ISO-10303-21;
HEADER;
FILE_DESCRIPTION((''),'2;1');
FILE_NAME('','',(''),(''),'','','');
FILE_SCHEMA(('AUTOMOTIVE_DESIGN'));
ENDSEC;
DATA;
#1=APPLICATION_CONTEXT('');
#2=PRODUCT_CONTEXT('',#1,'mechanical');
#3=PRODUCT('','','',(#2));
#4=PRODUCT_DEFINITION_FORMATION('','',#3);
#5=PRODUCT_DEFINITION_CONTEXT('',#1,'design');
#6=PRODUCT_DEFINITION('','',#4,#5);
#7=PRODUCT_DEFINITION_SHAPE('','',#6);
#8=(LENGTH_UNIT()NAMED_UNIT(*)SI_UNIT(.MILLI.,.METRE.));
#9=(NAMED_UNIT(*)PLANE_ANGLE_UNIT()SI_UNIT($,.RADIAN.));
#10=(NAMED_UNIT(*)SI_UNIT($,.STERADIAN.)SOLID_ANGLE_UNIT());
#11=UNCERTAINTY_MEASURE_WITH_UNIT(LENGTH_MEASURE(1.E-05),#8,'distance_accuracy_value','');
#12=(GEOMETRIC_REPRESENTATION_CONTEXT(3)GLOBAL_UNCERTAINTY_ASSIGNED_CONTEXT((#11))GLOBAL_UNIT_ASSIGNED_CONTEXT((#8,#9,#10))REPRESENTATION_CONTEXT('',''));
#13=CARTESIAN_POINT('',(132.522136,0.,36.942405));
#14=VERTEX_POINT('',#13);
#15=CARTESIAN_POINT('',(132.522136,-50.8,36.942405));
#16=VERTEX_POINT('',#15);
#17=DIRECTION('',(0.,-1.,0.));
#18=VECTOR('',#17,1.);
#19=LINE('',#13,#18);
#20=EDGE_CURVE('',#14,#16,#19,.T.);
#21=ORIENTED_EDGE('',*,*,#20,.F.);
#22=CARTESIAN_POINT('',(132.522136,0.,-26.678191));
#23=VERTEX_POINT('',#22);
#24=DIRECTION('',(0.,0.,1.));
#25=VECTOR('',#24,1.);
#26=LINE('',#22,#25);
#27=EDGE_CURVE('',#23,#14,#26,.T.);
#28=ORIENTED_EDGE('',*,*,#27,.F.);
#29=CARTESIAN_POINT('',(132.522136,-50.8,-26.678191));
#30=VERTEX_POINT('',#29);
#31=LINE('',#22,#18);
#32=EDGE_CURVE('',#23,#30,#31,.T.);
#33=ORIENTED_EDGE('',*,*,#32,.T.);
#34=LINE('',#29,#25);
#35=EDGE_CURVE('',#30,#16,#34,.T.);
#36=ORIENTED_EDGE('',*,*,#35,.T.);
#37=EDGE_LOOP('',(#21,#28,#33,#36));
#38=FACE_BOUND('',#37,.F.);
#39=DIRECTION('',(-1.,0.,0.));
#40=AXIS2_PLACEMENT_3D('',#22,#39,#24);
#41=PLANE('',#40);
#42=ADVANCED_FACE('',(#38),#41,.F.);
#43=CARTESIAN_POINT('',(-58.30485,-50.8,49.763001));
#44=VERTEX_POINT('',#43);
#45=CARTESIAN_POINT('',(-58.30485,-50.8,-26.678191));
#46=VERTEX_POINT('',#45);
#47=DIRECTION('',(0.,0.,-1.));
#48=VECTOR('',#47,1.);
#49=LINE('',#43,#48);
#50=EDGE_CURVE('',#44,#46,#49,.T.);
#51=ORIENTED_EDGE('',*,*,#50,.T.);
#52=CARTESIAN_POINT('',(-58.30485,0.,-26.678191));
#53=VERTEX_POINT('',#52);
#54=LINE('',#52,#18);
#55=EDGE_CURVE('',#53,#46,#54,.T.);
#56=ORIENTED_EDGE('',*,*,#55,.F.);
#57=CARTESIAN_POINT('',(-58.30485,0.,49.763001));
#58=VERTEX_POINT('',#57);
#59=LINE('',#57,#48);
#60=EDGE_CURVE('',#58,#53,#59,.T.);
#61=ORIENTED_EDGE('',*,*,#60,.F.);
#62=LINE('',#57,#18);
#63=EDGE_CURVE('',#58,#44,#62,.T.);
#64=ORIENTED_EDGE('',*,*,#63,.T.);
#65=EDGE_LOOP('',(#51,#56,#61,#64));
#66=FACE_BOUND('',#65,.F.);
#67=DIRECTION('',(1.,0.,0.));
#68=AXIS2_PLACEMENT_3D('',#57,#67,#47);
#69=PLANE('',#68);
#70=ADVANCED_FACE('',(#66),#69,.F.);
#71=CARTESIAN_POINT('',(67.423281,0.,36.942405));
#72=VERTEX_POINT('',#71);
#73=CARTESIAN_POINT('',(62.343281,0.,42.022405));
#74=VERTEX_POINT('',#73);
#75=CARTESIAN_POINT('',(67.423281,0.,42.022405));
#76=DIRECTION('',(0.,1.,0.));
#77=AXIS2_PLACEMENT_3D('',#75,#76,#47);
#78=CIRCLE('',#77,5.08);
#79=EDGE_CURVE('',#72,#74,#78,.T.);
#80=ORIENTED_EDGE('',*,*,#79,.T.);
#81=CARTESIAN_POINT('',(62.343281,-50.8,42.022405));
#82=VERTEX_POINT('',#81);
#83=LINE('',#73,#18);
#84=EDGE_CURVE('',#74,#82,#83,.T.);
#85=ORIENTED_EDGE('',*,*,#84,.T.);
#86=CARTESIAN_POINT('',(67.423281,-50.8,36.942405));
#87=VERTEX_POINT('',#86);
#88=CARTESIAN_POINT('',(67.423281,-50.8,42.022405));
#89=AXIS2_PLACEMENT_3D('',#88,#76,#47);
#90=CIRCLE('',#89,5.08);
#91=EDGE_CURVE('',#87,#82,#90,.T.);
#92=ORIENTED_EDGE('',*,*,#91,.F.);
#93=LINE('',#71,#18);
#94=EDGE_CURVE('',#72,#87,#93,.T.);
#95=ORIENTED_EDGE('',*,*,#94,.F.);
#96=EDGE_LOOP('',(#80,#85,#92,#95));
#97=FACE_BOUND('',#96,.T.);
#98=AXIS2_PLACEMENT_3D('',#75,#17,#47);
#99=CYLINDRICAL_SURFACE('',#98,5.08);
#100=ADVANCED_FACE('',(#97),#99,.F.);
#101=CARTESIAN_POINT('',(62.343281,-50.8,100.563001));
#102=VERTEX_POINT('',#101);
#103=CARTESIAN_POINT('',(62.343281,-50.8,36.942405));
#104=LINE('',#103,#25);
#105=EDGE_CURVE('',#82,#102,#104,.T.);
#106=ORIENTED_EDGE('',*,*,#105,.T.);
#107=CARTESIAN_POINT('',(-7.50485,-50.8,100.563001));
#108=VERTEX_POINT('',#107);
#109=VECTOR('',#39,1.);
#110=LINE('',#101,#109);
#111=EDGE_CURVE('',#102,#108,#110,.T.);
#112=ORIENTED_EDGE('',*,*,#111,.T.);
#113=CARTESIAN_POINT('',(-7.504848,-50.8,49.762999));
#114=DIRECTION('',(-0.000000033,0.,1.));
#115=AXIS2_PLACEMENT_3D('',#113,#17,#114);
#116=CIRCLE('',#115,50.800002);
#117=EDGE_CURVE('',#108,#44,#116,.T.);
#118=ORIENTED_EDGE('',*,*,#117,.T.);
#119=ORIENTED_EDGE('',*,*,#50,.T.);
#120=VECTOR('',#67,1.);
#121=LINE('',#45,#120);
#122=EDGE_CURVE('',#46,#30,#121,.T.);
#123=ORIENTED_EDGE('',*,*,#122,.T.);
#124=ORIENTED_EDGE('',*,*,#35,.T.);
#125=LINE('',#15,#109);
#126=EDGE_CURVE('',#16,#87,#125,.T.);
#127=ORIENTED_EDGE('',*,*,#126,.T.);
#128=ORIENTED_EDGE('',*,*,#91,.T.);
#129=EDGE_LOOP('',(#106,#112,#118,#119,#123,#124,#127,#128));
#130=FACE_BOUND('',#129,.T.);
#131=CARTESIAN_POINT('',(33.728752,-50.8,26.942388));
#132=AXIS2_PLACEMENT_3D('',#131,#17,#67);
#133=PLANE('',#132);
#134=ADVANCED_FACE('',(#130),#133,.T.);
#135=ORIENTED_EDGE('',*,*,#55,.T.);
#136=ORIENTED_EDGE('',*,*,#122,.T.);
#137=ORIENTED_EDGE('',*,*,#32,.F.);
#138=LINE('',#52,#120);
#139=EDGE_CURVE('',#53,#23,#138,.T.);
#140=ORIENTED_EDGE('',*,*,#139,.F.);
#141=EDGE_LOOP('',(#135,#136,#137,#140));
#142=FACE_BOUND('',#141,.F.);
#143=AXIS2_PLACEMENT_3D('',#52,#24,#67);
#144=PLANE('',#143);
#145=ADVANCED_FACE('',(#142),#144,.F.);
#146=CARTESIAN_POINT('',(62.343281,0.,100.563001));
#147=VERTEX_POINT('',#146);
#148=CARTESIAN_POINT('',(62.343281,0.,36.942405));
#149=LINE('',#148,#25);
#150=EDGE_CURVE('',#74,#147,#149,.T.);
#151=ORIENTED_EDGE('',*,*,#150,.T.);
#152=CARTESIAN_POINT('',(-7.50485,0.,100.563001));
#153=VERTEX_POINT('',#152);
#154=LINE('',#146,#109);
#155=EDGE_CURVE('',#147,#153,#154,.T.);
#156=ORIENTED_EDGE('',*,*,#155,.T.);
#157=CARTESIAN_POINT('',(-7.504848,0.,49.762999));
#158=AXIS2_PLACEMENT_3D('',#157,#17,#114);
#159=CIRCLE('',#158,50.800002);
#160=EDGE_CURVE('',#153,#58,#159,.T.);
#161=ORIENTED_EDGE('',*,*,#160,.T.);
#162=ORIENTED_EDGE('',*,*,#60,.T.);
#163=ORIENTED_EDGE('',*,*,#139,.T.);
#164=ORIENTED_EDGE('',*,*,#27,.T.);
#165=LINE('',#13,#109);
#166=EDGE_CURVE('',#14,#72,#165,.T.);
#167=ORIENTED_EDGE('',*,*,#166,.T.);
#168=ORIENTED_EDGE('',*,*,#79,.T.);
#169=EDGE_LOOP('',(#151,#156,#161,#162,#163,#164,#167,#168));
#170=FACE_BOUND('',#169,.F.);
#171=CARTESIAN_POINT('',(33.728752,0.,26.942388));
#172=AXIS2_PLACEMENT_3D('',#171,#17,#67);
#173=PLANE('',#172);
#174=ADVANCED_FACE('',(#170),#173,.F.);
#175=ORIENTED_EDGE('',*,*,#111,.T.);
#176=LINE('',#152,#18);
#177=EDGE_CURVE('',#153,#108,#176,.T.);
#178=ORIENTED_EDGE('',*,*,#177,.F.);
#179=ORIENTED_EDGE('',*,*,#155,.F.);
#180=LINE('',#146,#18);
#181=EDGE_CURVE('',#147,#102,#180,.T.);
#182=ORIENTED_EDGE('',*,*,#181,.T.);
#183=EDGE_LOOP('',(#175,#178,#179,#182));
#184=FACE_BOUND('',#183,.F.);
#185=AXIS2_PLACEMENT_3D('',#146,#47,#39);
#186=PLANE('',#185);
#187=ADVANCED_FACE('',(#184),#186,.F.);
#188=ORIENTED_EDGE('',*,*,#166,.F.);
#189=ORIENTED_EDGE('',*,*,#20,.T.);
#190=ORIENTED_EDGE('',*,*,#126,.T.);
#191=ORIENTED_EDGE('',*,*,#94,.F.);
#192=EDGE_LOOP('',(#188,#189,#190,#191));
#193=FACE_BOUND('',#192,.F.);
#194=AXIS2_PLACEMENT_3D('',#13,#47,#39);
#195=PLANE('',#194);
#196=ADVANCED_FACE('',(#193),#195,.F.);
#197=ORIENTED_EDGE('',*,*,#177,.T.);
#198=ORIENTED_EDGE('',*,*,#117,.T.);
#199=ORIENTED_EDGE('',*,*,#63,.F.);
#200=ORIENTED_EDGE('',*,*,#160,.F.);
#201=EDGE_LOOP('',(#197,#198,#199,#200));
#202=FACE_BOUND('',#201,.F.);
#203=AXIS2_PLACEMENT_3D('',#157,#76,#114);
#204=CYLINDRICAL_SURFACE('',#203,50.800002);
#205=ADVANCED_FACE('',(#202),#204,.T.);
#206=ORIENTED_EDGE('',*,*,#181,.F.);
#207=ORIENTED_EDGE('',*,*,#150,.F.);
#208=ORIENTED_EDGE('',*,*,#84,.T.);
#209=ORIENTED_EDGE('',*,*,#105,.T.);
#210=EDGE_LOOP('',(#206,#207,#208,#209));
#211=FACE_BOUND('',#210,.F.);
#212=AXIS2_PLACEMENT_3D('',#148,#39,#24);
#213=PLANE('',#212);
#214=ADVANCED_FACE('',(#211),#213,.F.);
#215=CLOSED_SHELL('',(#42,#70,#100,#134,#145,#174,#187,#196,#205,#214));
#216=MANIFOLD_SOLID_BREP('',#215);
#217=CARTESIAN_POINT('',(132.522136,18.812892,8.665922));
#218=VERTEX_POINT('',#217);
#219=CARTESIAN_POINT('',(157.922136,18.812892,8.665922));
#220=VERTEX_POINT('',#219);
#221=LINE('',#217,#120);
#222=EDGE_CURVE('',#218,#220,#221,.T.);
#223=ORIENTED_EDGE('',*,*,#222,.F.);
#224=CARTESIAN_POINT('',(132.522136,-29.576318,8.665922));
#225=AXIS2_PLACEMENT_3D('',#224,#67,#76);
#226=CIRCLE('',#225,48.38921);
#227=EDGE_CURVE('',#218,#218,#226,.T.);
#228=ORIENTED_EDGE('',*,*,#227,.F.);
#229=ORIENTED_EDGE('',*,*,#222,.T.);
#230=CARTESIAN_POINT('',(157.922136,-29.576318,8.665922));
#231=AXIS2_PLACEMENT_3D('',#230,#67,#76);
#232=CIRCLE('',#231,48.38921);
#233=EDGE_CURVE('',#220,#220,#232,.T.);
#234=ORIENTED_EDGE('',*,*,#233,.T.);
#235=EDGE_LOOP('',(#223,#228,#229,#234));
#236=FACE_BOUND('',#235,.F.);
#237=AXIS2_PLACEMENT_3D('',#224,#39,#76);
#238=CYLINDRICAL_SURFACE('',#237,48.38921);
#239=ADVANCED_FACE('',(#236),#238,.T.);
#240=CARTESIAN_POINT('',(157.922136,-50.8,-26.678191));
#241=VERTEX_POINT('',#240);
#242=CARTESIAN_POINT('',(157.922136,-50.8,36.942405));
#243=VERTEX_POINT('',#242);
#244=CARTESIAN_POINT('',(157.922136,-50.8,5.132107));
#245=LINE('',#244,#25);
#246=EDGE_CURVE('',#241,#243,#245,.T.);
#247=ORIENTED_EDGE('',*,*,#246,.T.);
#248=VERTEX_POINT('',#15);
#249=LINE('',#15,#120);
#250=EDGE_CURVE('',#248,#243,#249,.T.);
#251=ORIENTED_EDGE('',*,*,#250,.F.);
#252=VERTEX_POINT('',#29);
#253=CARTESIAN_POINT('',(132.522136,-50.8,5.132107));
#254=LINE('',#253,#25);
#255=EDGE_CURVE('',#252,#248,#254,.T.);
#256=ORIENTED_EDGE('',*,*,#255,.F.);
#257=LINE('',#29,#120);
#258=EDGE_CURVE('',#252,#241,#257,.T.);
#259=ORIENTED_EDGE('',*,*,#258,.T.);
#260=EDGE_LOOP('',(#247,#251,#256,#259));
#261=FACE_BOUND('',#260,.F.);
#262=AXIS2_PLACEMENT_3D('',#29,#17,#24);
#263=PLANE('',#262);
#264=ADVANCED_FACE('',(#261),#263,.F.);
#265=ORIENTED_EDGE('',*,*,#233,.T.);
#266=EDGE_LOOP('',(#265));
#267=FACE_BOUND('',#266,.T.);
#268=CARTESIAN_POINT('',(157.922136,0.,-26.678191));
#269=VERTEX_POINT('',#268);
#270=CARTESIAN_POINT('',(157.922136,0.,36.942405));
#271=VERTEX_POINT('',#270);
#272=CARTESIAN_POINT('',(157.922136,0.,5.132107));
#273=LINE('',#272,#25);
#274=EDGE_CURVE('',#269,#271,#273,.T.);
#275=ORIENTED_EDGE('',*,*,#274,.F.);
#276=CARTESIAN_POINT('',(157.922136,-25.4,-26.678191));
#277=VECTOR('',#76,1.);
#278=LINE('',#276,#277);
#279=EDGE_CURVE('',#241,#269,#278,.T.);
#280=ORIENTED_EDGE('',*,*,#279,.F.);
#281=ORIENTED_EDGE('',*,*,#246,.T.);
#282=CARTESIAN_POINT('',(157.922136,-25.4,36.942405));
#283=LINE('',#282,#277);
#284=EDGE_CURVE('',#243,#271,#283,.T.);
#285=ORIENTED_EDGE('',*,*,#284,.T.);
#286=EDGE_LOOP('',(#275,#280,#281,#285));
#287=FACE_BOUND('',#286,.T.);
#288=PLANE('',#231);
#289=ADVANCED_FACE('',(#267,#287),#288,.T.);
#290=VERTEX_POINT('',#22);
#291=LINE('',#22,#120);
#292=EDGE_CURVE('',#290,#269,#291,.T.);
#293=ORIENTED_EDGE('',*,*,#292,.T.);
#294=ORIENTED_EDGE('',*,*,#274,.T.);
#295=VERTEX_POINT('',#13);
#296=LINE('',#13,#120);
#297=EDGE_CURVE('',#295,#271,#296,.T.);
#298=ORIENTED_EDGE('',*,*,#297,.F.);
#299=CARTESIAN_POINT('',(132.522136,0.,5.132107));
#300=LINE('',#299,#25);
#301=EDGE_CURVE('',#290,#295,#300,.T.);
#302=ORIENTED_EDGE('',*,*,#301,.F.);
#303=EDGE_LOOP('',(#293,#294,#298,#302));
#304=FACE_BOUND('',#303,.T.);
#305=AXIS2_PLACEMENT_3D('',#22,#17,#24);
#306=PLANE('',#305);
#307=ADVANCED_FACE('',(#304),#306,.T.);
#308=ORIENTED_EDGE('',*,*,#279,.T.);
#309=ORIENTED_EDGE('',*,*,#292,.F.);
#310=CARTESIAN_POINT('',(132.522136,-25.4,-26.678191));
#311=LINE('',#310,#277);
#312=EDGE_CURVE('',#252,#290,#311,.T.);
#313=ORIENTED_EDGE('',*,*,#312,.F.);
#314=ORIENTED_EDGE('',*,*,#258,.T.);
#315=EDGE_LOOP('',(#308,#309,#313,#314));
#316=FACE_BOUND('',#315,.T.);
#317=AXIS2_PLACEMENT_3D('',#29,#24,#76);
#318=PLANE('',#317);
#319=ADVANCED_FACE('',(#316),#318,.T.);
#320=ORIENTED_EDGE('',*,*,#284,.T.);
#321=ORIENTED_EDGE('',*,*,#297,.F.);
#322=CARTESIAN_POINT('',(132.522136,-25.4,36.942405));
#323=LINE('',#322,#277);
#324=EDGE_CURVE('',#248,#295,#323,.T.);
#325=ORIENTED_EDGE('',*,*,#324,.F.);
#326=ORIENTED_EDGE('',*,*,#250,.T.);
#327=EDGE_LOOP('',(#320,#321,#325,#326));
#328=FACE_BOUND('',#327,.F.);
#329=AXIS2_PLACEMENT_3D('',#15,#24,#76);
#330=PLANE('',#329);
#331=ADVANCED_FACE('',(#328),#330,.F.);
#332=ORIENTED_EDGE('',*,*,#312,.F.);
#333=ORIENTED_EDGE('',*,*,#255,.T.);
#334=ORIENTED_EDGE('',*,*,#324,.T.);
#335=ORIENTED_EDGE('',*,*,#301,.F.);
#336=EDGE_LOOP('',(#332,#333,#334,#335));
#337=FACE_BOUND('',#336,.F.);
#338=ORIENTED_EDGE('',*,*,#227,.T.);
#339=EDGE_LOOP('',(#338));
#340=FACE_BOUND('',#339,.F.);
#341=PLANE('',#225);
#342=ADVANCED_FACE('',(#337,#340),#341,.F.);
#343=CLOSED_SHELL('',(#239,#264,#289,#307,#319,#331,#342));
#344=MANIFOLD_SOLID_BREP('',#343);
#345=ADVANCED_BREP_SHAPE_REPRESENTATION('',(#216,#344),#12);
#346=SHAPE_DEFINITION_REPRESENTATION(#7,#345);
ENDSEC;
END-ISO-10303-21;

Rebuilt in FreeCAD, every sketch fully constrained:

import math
import FreeCAD as App
import Part
import Sketcher

V = App.Vector
Q = App.Units.Quantity


def edges_at(feature, points):
    """Names of the edges that pass closest to the given points."""
    edges = feature.Shape.Edges
    near = lambda p: min(range(len(edges)), key=lambda i: edges[i].distToShape(Part.Vertex(*p))[0])
    return sorted({f"Edge{near(p) + 1}" for p in points})

doc = App.newDocument("Part")
body = doc.addObject("PartDesign::Body", "Body")

# Sketch on XZ plane
sketch1 = doc.addObject("Sketcher::SketchObject", "Sketch")
body.addObject(sketch1)
sketch1.AttachmentSupport = (doc.XZ_Plane, [""])
sketch1.MapMode = "FlatFace"
sketch1.addGeometry([
    Part.LineSegment(V(62, 101, 0), V(-8, 101, 0)),  # 0
    Part.ArcOfCircle(Part.Circle(V(-8, 50, 0), V(0, 0, 1), 51), math.radians(90), math.radians(180)),  # 1
    Part.LineSegment(V(-58, 50, 0), V(-58, -27, 0)),  # 2
    Part.LineSegment(V(-58, -27, 0), V(133, -27, 0)),  # 3
    Part.LineSegment(V(133, -27, 0), V(133, 37, 0)),  # 4
    Part.LineSegment(V(133, 37, 0), V(62, 37, 0)),  # 5
    Part.LineSegment(V(62, 37, 0), V(62, 101, 0)),  # 6
], False)
sketch1.addConstraint([
    Sketcher.Constraint("Tangent", 0, 2, 1, 1),
    Sketcher.Constraint("Tangent", 1, 2, 2, 1),
    Sketcher.Constraint("Coincident", 2, 2, 3, 1),
    Sketcher.Constraint("Coincident", 3, 2, 4, 1),
    Sketcher.Constraint("Coincident", 4, 2, 5, 1),
    Sketcher.Constraint("Coincident", 5, 2, 6, 1),
    Sketcher.Constraint("Coincident", 6, 2, 0, 1),
    Sketcher.Constraint("Horizontal", 0),
    Sketcher.Constraint("Vertical", 2),
    Sketcher.Constraint("Horizontal", 3),
    Sketcher.Constraint("Vertical", 4),
    Sketcher.Constraint("Horizontal", 5),
    Sketcher.Constraint("Vertical", 6),
    Sketcher.Constraint("Equal", 4, 6),
    Sketcher.Constraint("Radius", 1, Q("2.0000001 in")),
    Sketcher.Constraint("DistanceX", 0, 2, 0, 1, 69.848131),
    Sketcher.Constraint("DistanceY", 2, 2, 2, 1, 76.441192),
    Sketcher.Constraint("DistanceY", -1, 1, 1, 3, 49.762999),
    Sketcher.Constraint("DistanceX", 3, 1, 3, 2, 190.826986),
    Sketcher.Constraint("DistanceX", 1, 3, -1, 1, 7.504848),
])
pad1 = doc.addObject("PartDesign::Pad", "Pad")
body.addObject(pad1)
pad1.Profile = sketch1
pad1.Length = Q("2 in")
doc.recompute()

fillet = doc.addObject("PartDesign::Fillet", "Fillet")
body.addObject(fillet)
fillet.Base = (pad1, edges_at(pad1, [(62.343, -25.4, 36.942)]))
fillet.Radius = Q("0.2 in")
body2 = doc.addObject("PartDesign::Body", "Body001")

# Sketch on YZ plane
sketch2 = doc.addObject("Sketcher::SketchObject", "Sketch001")
body2.addObject(sketch2)
sketch2.AttachmentSupport = (doc.getObject("YZ_Plane001"), [""])
sketch2.MapMode = "FlatFace"
sketch2.AttachmentOffset = App.Placement(V(0, 0, 132.522136), App.Rotation())
sketch2.addGeometry([
    Part.Circle(V(-30, 9, 0), V(0, 0, 1), 48),  # 0
    Part.LineSegment(V(0, -27, 0), V(-51, -27, 0)),  # 1
    Part.LineSegment(V(-51, -27, 0), V(-51, 37, 0)),  # 2
    Part.LineSegment(V(-51, 37, 0), V(0, 37, 0)),  # 3
    Part.LineSegment(V(0, 37, 0), V(0, -27, 0)),  # 4
], False)
sketch2.addConstraint([
    Sketcher.Constraint("Coincident", 1, 2, 2, 1),
    Sketcher.Constraint("Coincident", 2, 2, 3, 1),
    Sketcher.Constraint("Coincident", 3, 2, 4, 1),
    Sketcher.Constraint("Coincident", 4, 2, 1, 1),
    Sketcher.Constraint("Horizontal", 1),
    Sketcher.Constraint("Vertical", 2),
    Sketcher.Constraint("Horizontal", 3),
    Sketcher.Constraint("Vertical", 4),
    Sketcher.Constraint("PointOnObject", 3, 2, -2),
    Sketcher.Constraint("DistanceX", 1, 2, 1, 1, Q("2 in")),
    Sketcher.Constraint("Diameter", 0, 96.77842),
    Sketcher.Constraint("DistanceY", 2, 1, 2, 2, 63.620596),
    Sketcher.Constraint("DistanceX", 0, 3, -1, 1, 29.576318),
    Sketcher.Constraint("DistanceY", 1, 2, -1, 1, 26.678191),
    Sketcher.Constraint("DistanceY", -1, 1, 0, 3, 8.665922),
])
pad2 = doc.addObject("PartDesign::Pad", "Pad001")
body2.addObject(pad2)
pad2.Profile = sketch2
pad2.Length = Q("1 in")

doc.recompute()
